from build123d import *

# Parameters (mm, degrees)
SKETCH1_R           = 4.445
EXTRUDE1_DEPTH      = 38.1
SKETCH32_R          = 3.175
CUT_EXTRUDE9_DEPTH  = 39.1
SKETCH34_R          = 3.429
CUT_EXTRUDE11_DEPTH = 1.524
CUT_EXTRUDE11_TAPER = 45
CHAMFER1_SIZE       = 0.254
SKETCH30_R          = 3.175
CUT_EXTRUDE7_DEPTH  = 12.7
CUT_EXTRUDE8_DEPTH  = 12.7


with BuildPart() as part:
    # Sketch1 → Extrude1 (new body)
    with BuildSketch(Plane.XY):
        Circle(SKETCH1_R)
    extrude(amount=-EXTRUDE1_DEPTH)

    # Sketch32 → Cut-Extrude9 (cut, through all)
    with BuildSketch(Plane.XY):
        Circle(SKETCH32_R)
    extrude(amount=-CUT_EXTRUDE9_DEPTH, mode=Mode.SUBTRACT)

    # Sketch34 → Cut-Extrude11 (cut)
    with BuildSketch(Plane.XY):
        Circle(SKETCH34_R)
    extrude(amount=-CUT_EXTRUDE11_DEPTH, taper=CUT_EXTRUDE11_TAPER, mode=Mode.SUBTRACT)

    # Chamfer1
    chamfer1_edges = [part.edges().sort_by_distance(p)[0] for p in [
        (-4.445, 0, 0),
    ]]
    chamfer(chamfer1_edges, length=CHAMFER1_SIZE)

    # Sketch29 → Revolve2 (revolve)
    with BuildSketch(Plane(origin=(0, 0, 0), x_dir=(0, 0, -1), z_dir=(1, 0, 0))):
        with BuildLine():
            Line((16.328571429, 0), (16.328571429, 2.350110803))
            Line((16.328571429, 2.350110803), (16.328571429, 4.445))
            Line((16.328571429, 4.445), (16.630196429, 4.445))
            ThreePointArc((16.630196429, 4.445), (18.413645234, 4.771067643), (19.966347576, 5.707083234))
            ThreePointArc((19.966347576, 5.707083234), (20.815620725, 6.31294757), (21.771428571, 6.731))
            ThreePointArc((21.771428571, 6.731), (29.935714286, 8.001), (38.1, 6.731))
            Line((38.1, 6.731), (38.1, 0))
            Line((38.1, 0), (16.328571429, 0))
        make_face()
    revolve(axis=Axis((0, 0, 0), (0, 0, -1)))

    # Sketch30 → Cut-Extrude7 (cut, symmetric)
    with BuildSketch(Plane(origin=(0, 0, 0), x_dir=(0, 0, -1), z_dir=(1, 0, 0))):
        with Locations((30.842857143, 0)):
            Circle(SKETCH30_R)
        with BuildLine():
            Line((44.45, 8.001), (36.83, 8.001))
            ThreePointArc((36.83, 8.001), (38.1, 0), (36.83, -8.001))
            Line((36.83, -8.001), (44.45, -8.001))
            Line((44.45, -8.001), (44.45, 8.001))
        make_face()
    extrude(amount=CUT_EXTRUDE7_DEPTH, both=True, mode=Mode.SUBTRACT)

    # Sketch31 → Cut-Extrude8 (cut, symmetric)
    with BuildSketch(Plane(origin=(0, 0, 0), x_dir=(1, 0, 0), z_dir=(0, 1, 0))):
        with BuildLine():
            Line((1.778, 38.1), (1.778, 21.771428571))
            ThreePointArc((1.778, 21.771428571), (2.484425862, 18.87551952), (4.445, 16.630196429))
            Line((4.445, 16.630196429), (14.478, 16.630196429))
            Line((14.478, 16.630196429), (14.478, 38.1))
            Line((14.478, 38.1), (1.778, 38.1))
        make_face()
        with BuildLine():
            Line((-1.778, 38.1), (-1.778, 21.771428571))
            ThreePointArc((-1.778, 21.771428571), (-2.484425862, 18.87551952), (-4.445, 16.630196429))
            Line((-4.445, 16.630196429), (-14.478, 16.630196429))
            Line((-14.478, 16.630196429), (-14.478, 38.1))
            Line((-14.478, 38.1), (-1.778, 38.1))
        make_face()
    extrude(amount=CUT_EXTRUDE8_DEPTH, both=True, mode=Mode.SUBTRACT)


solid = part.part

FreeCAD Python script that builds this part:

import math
import FreeCAD as App
import Part
import Sketcher
Q = App.Units.Quantity


def edges_at(feature, points):
    """Names of the edges that pass closest to the given points."""
    edges = feature.Shape.Edges
    near = lambda p: min(range(len(edges)), key=lambda i: edges[i].distToShape(Part.Vertex(*p))[0])
    return sorted({f"Edge{near(p) + 1}" for p in points})

doc = App.newDocument("Part")
body = doc.addObject("PartDesign::Body", "Body")

# Sketch on XY plane
sketch1 = body.newObject("Sketcher::SketchObject", "Sketch")
sketch1.AttachmentSupport = (doc.getObject("XY_Plane"), [""])
sketch1.MapMode = "FlatFace"
sketch1.addGeometry(Part.Circle(App.Vector(0, 0, 0), App.Vector(0, 0, 1), 4.4), False)
sketch1.addConstraint([
    Sketcher.Constraint("Coincident", 0, 3, -1, 1),
    Sketcher.Constraint("Diameter", 0, Q("0.35 in")),
])
pad1 = body.newObject("PartDesign::Pad", "Pad")
pad1.Profile = sketch1
pad1.Length = Q("1.5 in")
pad1.Reversed = True

# Sketch on XY plane
sketch2 = body.newObject("Sketcher::SketchObject", "Sketch001")
sketch2.AttachmentSupport = (doc.getObject("XY_Plane"), [""])
sketch2.MapMode = "FlatFace"
sketch2.addGeometry(Part.Circle(App.Vector(0, 0, 0), App.Vector(0, 0, 1), 3.2), False)
sketch2.addConstraint([
    Sketcher.Constraint("Coincident", 0, 3, -1, 1),
    Sketcher.Constraint("Diameter", 0, Q("0.25 in")),
])
pocket1 = body.newObject("PartDesign::Pocket", "Pocket")
pocket1.Profile = sketch2
pocket1.Type = "ThroughAll"

# Sketch on XY plane
sketch3 = body.newObject("Sketcher::SketchObject", "Sketch002")
sketch3.AttachmentSupport = (doc.getObject("XY_Plane"), [""])
sketch3.MapMode = "FlatFace"
sketch3.addGeometry(Part.Circle(App.Vector(0, 0, 0), App.Vector(0, 0, 1), 3.4), False)
sketch3.addConstraint([
    Sketcher.Constraint("Coincident", 0, 3, -1, 1),
    Sketcher.Constraint("Diameter", 0, Q("0.27 in")),
])
pocket2 = body.newObject("PartDesign::Pocket", "Pocket001")
pocket2.Profile = sketch3
pocket2.Length = Q("0.06 in")
pocket2.TaperAngle = -45
doc.recompute()

chamfer = body.newObject("PartDesign::Chamfer", "Chamfer")
chamfer.Base = (pocket2, edges_at(pocket2, [(-4.445, 0, 0)]))
chamfer.Size = Q("0.01 in")

# Sketch on YZ plane
sketch4 = body.newObject("Sketcher::SketchObject", "Sketch003")
sketch4.AttachmentSupport = (doc.getObject("YZ_Plane"), [""])
sketch4.MapMode = "FlatFace"
sketch4.addGeometry([
    Part.LineSegment(App.Vector(4.45, -16.33, 0), App.Vector(0, -16.33, 0)),  # 0
    Part.LineSegment(App.Vector(0, -16.33, 0), App.Vector(0, -38.1, 0)),  # 1
    Part.LineSegment(App.Vector(0, -38.1, 0), App.Vector(6.73, -38.1, 0)),  # 2
    Part.ArcOfCircle(Part.Circle(App.Vector(-18.88, -29.94, 0), App.Vector(0, 0, 1), 26.88), math.radians(-18), math.radians(18)),  # 3
    Part.ArcOfCircle(Part.Circle(App.Vector(1.93, -23.3, 0), App.Vector(0, 0, 1), 5.04), math.radians(18), math.radians(41)),  # 4
    Part.ArcOfCircle(Part.Circle(App.Vector(9.49, -16.63, 0), App.Vector(0, 0, 1), 5.04), math.radians(-180), math.radians(-139)),  # 5
    Part.LineSegment(App.Vector(4.45, -16.63, 0), App.Vector(4.45, -16.33, 0)),  # 6
], False)
sketch4.addConstraint([
    Sketcher.Constraint("Coincident", 0, 2, 1, 1),
    Sketcher.Constraint("Coincident", 1, 2, 2, 1),
    Sketcher.Constraint("Coincident", 2, 2, 3, 1),
    Sketcher.Constraint("Tangent", 3, 2, 4, 1),
    Sketcher.Constraint("Tangent", 4, 2, 5, 2),
    Sketcher.Constraint("Tangent", 5, 1, 6, 1),
    Sketcher.Constraint("Coincident", 6, 2, 0, 1),
    Sketcher.Constraint("Horizontal", 0),
    Sketcher.Constraint("Vertical", 1),
    Sketcher.Constraint("Horizontal", 2),
    Sketcher.Constraint("Vertical", 6),
    Sketcher.Constraint("Equal", 4, 5),
    Sketcher.Constraint("PointOnObject", 0, 2, -2),
    Sketcher.Constraint("Vertical", 2, 2, 3, 2),
    Sketcher.Constraint("DistanceY", 1, 2, -1, 1, Q("1.5 in")),
    Sketcher.Constraint("DistanceX", 0, 2, 0, 1, Q("0.175 in")),
    Sketcher.Constraint("DistanceX", 2, 1, 2, 2, Q("0.265 in")),
    Sketcher.Constraint("Radius", 4, 5.04038),
    Sketcher.Constraint("Radius", 3, 26.877347),
    Sketcher.Constraint("DistanceY", 1, 2, 1, 1, 21.771429),
    Sketcher.Constraint("DistanceY", 4, 3, -1, 1, 23.302499),
])
revolution = body.newObject("PartDesign::Revolution", "Revolution")
revolution.Profile = sketch4
revolution.ReferenceAxis = (sketch4, ["V_Axis"])
revolution.Angle = 360

# Sketch on YZ plane
sketch5 = body.newObject("Sketcher::SketchObject", "Sketch004")
sketch5.AttachmentSupport = (doc.getObject("YZ_Plane"), [""])
sketch5.MapMode = "FlatFace"
sketch5.addGeometry([
    Part.Circle(App.Vector(0, -30.8, 0), App.Vector(0, 0, 1), 3.2),  # 0
    Part.LineSegment(App.Vector(8, -44.5, 0), App.Vector(8, -36.8, 0)),  # 1
    Part.ArcOfCircle(Part.Circle(App.Vector(0, -12.3, 0), App.Vector(0, 0, 1), 25.8), math.radians(-108), math.radians(-72)),  # 2
    Part.LineSegment(App.Vector(-8, -36.8, 0), App.Vector(-8, -44.5, 0)),  # 3
    Part.LineSegment(App.Vector(-8, -44.5, 0), App.Vector(8, -44.5, 0)),  # 4
], False)
sketch5.addConstraint([
    Sketcher.Constraint("Coincident", 1, 2, 2, 2),
    Sketcher.Constraint("Coincident", 2, 1, 3, 1),
    Sketcher.Constraint("Coincident", 3, 2, 4, 1),
    Sketcher.Constraint("Coincident", 4, 2, 1, 1),
    Sketcher.Constraint("Vertical", 1),
    Sketcher.Constraint("Vertical", 3),
    Sketcher.Constraint("Horizontal", 4),
    Sketcher.Constraint("Symmetric", 1, 2, 2, 1, -2),
    Sketcher.Constraint("PointOnObject", 0, 3, -2),
    Sketcher.Constraint("Diameter", 0, Q("0.25 in")),
    Sketcher.Constraint("DistanceY", 1, 1, 1, 2, Q("0.3 in")),
    Sketcher.Constraint("DistanceX", 4, 1, 4, 2, Q("0.63 in")),
    Sketcher.Constraint("DistanceY", 1, 2, -1, 1, Q("1.45 in")),
    Sketcher.Constraint("Radius", 2, 25.83815),
    Sketcher.Constraint("DistanceY", 0, 3, -1, 1, 30.842857),
])
pocket3 = body.newObject("PartDesign::Pocket", "Pocket002")
pocket3.Profile = sketch5
pocket3.Length = Q("1 in")
pocket3.Midplane = True

# Sketch on XZ plane
sketch6 = body.newObject("Sketcher::SketchObject", "Sketch005")
sketch6.AttachmentSupport = (doc.getObject("XZ_Plane"), [""])
sketch6.MapMode = "FlatFace"
sketch6.addGeometry([
    Part.LineSegment(App.Vector(2, -38, 0), App.Vector(2, -22, 0)),  # 0
    Part.ArcOfCircle(Part.Circle(App.Vector(8, -22, 0), App.Vector(0, 0, 1), 6), math.radians(125), math.radians(180)),  # 1
    Part.LineSegment(App.Vector(4, -17, 0), App.Vector(14, -17, 0)),  # 2
    Part.LineSegment(App.Vector(14, -17, 0), App.Vector(14, -38, 0)),  # 3
    Part.LineSegment(App.Vector(14, -38, 0), App.Vector(2, -38, 0)),  # 4
    Part.LineSegment(App.Vector(-2, -22, 0), App.Vector(-2, -38, 0)),  # 5
    Part.LineSegment(App.Vector(-2, -38, 0), App.Vector(-14, -38, 0)),  # 6
    Part.LineSegment(App.Vector(-14, -38, 0), App.Vector(-14, -17, 0)),  # 7
    Part.LineSegment(App.Vector(-14, -17, 0), App.Vector(-4, -17, 0)),  # 8
    Part.ArcOfCircle(Part.Circle(App.Vector(-8, -22, 0), App.Vector(0, 0, 1), 6), math.radians(0), math.radians(55)),  # 9
], False)
sketch6.addConstraint([
    Sketcher.Constraint("Tangent", 0, 2, 1, 2),
    Sketcher.Constraint("Coincident", 1, 1, 2, 1),
    Sketcher.Constraint("Coincident", 2, 2, 3, 1),
    Sketcher.Constraint("Coincident", 3, 2, 4, 1),
    Sketcher.Constraint("Coincident", 4, 2, 0, 1),
    Sketcher.Constraint("Coincident", 5, 2, 6, 1),
    Sketcher.Constraint("Coincident", 6, 2, 7, 1),
    Sketcher.Constraint("Coincident", 7, 2, 8, 1),
    Sketcher.Constraint("Coincident", 8, 2, 9, 2),
    Sketcher.Constraint("Tangent", 9, 1, 5, 1),
    Sketcher.Constraint("Vertical", 0),
    Sketcher.Constraint("Horizontal", 2),
    Sketcher.Constraint("Vertical", 3),
    Sketcher.Constraint("Horizontal", 4),
    Sketcher.Constraint("Vertical", 5),
    Sketcher.Constraint("Horizontal", 6),
    Sketcher.Constraint("Vertical", 7),
    Sketcher.Constraint("Horizontal", 8),
    Sketcher.Constraint("Equal", 1, 9),
    Sketcher.Constraint("Symmetric", 1, 3, 9, 3, -2),
    Sketcher.Constraint("Symmetric", 3, 2, 6, 2, -2),
    Sketcher.Constraint("Horizontal", 2, 2, 7, 2),
    Sketcher.Constraint("DistanceX", 4, 2, 4, 1, Q("0.5 in")),
    Sketcher.Constraint("DistanceY", 3, 2, -1, 1, Q("1.5 in")),
    Sketcher.Constraint("DistanceX", 2, 1, 2, 2, Q("0.395 in")),
    Sketcher.Constraint("DistanceX", -1, 1, 0, 2, Q("0.07 in")),
    Sketcher.Constraint("Radius", 1, 6.288931),
    Sketcher.Constraint("DistanceY", 0, 1, 0, 2, 16.328571),
])
pocket4 = body.newObject("PartDesign::Pocket", "Pocket003")
pocket4.Profile = sketch6
pocket4.Length = Q("1 in")
pocket4.Midplane = True

doc.recompute()
